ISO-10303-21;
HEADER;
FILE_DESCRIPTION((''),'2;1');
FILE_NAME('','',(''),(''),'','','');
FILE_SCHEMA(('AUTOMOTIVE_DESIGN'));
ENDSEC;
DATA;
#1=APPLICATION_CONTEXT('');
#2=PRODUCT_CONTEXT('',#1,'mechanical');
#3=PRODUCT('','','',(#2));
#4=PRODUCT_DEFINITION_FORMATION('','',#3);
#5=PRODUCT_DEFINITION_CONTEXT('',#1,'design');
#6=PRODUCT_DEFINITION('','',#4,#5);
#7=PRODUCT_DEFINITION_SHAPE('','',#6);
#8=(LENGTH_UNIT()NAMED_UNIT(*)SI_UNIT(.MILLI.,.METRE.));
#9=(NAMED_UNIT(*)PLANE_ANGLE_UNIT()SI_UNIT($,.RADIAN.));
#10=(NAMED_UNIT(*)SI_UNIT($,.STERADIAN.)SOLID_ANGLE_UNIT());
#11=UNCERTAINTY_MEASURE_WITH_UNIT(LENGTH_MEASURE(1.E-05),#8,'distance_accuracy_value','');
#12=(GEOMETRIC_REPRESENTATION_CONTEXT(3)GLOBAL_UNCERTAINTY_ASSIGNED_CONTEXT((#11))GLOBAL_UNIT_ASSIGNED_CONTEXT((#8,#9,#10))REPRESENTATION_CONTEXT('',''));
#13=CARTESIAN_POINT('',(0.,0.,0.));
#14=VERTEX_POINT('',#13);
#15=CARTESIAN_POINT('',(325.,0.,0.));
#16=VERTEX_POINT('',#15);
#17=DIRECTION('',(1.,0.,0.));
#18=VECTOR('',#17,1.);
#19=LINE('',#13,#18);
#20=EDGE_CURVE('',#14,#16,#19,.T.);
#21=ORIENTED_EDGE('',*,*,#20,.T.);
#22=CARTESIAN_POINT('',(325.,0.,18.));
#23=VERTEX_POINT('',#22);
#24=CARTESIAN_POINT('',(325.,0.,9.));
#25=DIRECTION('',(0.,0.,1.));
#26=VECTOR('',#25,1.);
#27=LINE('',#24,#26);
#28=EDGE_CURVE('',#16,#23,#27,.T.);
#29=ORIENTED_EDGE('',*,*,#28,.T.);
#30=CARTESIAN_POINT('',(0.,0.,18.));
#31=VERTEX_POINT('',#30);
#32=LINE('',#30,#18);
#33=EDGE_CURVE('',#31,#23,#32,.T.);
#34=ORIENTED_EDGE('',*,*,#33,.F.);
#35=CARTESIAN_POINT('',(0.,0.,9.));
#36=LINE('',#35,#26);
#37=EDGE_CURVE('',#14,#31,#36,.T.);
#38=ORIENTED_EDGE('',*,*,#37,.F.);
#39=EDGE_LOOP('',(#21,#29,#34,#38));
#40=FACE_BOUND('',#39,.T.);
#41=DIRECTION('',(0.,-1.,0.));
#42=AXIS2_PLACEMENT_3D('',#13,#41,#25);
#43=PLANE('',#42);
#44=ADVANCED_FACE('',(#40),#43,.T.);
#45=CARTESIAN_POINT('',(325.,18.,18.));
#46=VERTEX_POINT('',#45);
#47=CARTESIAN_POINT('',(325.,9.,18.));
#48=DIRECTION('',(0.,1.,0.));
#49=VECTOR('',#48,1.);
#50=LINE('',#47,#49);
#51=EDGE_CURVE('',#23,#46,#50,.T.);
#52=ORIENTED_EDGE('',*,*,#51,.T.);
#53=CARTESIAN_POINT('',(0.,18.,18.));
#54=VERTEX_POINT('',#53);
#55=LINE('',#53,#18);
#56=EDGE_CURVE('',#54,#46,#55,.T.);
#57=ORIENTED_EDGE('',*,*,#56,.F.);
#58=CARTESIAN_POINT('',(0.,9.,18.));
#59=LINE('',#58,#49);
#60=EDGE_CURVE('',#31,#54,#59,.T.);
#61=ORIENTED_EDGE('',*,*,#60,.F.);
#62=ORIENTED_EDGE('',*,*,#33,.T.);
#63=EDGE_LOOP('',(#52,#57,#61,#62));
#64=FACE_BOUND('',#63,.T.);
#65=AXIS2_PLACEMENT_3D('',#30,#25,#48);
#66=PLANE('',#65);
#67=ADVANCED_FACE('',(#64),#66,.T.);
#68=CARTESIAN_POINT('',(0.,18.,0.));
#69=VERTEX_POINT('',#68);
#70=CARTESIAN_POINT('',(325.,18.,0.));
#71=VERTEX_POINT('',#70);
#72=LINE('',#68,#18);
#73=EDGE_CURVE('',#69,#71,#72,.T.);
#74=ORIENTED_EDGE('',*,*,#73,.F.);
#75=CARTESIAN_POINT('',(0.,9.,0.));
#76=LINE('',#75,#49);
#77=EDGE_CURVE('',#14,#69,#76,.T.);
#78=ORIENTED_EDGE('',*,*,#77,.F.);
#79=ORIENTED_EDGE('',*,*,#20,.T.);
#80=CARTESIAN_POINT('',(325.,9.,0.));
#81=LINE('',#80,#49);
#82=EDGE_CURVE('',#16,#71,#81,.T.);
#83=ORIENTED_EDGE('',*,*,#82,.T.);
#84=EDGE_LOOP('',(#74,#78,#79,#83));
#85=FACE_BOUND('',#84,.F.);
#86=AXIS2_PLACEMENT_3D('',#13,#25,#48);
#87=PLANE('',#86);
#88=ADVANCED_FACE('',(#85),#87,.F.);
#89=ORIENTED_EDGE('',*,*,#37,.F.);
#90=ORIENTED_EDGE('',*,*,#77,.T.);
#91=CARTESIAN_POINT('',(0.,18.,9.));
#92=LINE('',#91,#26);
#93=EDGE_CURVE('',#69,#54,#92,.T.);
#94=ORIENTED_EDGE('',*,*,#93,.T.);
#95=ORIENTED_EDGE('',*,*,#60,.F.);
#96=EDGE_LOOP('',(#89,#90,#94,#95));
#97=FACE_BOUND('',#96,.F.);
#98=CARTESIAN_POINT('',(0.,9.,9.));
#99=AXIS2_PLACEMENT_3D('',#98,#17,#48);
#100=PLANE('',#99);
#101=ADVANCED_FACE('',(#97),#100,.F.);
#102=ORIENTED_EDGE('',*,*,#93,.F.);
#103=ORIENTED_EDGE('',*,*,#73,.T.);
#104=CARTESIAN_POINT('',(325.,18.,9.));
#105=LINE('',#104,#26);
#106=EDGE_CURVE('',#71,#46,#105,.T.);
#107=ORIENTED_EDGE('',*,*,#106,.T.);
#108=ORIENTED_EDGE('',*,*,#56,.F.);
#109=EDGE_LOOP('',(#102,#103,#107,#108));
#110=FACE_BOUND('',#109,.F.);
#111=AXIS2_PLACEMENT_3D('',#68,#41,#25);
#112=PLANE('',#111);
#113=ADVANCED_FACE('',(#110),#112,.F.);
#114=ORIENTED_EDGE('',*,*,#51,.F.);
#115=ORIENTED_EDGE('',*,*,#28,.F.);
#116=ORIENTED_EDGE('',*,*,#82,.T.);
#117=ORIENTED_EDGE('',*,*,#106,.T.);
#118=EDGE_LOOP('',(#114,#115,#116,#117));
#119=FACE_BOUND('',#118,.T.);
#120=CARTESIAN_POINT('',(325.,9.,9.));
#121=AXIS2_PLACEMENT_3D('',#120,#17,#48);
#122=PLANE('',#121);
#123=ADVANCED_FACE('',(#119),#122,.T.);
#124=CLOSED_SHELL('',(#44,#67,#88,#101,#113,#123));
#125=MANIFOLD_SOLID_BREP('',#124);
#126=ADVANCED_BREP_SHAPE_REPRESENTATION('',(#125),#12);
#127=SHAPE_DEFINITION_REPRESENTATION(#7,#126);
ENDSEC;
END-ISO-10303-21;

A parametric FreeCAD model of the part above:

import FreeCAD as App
import Part
import Sketcher
from FreeCAD import Vector


def add_polygon(sketch, points):
    """Adds a closed chain of lines whose ends are joined by coincident constraints."""
    first, n = sketch.GeometryCount, len(points)
    for a, b in zip(points, points[1:] + points[:1]):
        sketch.addGeometry(Part.LineSegment(App.Vector(*a, 0), App.Vector(*b, 0)), False)
    for i in range(n):
        sketch.addConstraint(Sketcher.Constraint("Coincident", first + i, 2, first + (i + 1) % n, 1))

doc = App.newDocument("Part")
body = doc.addObject("PartDesign::Body", "Body")

# Sketch on YZ plane
sketch1 = doc.addObject("Sketcher::SketchObject", "Sketch")
body.addObject(sketch1)
sketch1.AttachmentSupport = (doc.YZ_Plane, [""])
sketch1.MapMode = "FlatFace"
add_polygon(sketch1, [(0, 18), (0, 0), (18, 0), (18, 18)])  # lines 0-3
sketch1.addConstraint([
    Sketcher.Constraint("Vertical", 0),
    Sketcher.Constraint("Horizontal", 1),
    Sketcher.Constraint("Vertical", 2),
    Sketcher.Constraint("Horizontal", 3),
    Sketcher.Constraint("Coincident", 0, 2, -1, 1),
    Sketcher.Constraint("Equal", 3, 0),
    Sketcher.Constraint("DistanceX", 1, 1, 1, 2, 18.0),
])
pad1 = doc.addObject("PartDesign::Pad", "Pad")
body.addObject(pad1)
pad1.Profile = sketch1
pad1.Length = 325

doc.recompute()
